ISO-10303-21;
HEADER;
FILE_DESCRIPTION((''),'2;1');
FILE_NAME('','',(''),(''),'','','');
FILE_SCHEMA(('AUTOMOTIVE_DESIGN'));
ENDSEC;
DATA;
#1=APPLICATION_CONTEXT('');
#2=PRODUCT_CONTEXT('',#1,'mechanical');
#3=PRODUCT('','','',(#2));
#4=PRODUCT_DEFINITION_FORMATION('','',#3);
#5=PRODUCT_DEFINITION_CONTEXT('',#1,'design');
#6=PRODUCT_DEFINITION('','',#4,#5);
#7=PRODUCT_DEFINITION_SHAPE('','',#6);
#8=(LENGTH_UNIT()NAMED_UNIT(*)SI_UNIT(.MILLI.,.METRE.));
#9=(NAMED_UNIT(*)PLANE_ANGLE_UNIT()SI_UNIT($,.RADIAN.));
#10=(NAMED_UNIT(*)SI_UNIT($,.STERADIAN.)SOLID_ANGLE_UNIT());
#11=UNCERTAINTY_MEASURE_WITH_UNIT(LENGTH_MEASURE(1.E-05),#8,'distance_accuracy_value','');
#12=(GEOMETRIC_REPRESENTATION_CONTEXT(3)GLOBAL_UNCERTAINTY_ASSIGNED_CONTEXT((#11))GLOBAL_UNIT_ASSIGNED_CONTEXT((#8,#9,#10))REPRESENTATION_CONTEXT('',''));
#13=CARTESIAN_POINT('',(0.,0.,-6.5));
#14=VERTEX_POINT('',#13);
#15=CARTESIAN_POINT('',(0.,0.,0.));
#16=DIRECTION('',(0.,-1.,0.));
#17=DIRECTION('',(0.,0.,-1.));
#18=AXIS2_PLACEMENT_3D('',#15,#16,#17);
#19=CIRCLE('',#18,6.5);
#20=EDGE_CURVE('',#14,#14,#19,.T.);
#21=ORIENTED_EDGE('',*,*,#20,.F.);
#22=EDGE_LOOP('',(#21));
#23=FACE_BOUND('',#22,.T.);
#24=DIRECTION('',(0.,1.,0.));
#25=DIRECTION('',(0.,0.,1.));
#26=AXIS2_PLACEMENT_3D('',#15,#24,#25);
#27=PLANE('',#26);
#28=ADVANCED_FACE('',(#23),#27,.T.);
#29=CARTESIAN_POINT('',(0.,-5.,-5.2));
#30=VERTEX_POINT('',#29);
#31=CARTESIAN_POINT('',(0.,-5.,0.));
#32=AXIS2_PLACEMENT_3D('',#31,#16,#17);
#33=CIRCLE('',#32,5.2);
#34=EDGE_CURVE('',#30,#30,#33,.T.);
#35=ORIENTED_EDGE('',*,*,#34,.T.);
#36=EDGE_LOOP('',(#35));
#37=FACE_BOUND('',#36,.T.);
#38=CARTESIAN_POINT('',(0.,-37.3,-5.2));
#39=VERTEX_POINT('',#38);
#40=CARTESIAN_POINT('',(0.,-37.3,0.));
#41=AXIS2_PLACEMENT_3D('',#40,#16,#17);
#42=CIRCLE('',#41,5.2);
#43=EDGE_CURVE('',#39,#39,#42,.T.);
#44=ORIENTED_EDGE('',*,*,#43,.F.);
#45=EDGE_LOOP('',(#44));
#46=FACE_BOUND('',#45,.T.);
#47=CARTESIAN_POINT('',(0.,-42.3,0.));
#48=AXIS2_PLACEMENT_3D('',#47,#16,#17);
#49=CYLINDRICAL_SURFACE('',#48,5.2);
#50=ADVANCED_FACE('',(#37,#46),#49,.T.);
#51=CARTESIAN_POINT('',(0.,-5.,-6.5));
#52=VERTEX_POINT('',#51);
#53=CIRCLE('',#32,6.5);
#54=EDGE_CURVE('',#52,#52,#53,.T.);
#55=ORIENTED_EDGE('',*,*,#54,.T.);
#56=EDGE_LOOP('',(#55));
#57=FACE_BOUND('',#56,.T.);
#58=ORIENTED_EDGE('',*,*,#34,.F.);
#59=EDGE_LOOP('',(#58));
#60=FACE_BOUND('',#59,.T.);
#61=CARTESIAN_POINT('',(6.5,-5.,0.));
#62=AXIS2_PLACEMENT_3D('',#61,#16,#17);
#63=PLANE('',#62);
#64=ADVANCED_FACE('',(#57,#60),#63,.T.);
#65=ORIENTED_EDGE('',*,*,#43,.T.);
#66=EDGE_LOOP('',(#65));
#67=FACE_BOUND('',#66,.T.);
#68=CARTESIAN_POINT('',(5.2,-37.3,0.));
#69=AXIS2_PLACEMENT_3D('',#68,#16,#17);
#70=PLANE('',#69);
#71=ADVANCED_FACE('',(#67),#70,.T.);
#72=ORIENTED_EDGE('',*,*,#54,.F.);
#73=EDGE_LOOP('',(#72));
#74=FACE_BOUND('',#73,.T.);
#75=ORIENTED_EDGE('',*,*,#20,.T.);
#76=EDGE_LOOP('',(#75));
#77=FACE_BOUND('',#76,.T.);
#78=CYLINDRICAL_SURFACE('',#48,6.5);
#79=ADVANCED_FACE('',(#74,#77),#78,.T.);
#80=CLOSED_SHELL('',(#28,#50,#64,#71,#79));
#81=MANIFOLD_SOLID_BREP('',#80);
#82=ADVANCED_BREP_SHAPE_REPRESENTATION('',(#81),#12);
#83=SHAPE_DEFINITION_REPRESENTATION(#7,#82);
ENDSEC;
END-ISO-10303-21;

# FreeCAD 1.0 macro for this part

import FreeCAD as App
import Part
import Sketcher

V = App.Vector
Q = App.Units.Quantity

doc = App.newDocument("Part")
params = doc.addObject("Spreadsheet::Sheet", "Params")
for row, (alias, value) in enumerate([
    ("sketch1_height", "5 mm"),
    ("sketch1_width", "6.5 mm"),
    ("sketch1_width2", "5.2 mm"),
    ("sketch1_height2", "37.3 mm"),
    ("revolution_angle", "360 deg"),
], start=1):
    params.set(f"A{row}", alias)
    params.set(f"B{row}", "=" + value)
    params.setAlias(f"B{row}", alias)

body = doc.addObject("PartDesign::Body", "Body")

# Sketch on XY plane
sketch1 = doc.addObject("Sketcher::SketchObject", "Sketch")
body.addObject(sketch1)
sketch1.AttachmentSupport = (doc.XY_Plane, [""])
sketch1.MapMode = "FlatFace"
sketch1.addGeometry(Part.LineSegment(V(6.5, 0, 0), V(0, 0, 0)), False)
sketch1.addGeometry(Part.LineSegment(V(0, 0, 0), V(0, -37.3, 0)), False)
sketch1.addGeometry(Part.LineSegment(V(0, -37.3, 0), V(5.2, -37.3, 0)), False)
sketch1.addGeometry(Part.LineSegment(V(5.2, -37.3, 0), V(5.2, -5, 0)), False)
sketch1.addGeometry(Part.LineSegment(V(5.2, -5, 0), V(6.5, -5, 0)), False)
sketch1.addGeometry(Part.LineSegment(V(6.5, -5, 0), V(6.5, 0, 0)), False)
sketch1.addConstraint(Sketcher.Constraint("Coincident", 0, 2, 1, 1))
sketch1.addConstraint(Sketcher.Constraint("Coincident", 1, 2, 2, 1))
sketch1.addConstraint(Sketcher.Constraint("Coincident", 2, 2, 3, 1))
sketch1.addConstraint(Sketcher.Constraint("Coincident", 3, 2, 4, 1))
sketch1.addConstraint(Sketcher.Constraint("Coincident", 4, 2, 5, 1))
sketch1.addConstraint(Sketcher.Constraint("Coincident", 5, 2, 0, 1))
sketch1.addConstraint(Sketcher.Constraint("Horizontal", 0))
sketch1.addConstraint(Sketcher.Constraint("Vertical", 1))
sketch1.addConstraint(Sketcher.Constraint("Horizontal", 2))
sketch1.addConstraint(Sketcher.Constraint("Vertical", 3))
sketch1.addConstraint(Sketcher.Constraint("Horizontal", 4))
sketch1.addConstraint(Sketcher.Constraint("Vertical", 5))
sketch1.addConstraint(Sketcher.Constraint("Coincident", 0, 2, -1, 1))
sketch1.addConstraint(Sketcher.Constraint("DistanceY", 5, 1, 5, 2, Q("5 mm")))
sketch1.addConstraint(Sketcher.Constraint("DistanceX", 0, 2, 0, 1, Q("6.5 mm")))
sketch1.addConstraint(Sketcher.Constraint("DistanceX", 2, 1, 2, 2, Q("5.2 mm")))
sketch1.addConstraint(Sketcher.Constraint("DistanceY", 1, 2, 1, 1, Q("37.3 mm")))
sketch1.setExpression("Constraints[13]", "Params.sketch1_height")
sketch1.setExpression("Constraints[14]", "Params.sketch1_width")
sketch1.setExpression("Constraints[15]", "Params.sketch1_width2")
sketch1.setExpression("Constraints[16]", "Params.sketch1_height2")
revolution = doc.addObject("PartDesign::Revolution", "Revolution")
body.addObject(revolution)
revolution.Profile = sketch1
revolution.ReferenceAxis = (sketch1, ["V_Axis"])
revolution.setExpression("Angle", "Params.revolution_angle")

doc.recompute()
